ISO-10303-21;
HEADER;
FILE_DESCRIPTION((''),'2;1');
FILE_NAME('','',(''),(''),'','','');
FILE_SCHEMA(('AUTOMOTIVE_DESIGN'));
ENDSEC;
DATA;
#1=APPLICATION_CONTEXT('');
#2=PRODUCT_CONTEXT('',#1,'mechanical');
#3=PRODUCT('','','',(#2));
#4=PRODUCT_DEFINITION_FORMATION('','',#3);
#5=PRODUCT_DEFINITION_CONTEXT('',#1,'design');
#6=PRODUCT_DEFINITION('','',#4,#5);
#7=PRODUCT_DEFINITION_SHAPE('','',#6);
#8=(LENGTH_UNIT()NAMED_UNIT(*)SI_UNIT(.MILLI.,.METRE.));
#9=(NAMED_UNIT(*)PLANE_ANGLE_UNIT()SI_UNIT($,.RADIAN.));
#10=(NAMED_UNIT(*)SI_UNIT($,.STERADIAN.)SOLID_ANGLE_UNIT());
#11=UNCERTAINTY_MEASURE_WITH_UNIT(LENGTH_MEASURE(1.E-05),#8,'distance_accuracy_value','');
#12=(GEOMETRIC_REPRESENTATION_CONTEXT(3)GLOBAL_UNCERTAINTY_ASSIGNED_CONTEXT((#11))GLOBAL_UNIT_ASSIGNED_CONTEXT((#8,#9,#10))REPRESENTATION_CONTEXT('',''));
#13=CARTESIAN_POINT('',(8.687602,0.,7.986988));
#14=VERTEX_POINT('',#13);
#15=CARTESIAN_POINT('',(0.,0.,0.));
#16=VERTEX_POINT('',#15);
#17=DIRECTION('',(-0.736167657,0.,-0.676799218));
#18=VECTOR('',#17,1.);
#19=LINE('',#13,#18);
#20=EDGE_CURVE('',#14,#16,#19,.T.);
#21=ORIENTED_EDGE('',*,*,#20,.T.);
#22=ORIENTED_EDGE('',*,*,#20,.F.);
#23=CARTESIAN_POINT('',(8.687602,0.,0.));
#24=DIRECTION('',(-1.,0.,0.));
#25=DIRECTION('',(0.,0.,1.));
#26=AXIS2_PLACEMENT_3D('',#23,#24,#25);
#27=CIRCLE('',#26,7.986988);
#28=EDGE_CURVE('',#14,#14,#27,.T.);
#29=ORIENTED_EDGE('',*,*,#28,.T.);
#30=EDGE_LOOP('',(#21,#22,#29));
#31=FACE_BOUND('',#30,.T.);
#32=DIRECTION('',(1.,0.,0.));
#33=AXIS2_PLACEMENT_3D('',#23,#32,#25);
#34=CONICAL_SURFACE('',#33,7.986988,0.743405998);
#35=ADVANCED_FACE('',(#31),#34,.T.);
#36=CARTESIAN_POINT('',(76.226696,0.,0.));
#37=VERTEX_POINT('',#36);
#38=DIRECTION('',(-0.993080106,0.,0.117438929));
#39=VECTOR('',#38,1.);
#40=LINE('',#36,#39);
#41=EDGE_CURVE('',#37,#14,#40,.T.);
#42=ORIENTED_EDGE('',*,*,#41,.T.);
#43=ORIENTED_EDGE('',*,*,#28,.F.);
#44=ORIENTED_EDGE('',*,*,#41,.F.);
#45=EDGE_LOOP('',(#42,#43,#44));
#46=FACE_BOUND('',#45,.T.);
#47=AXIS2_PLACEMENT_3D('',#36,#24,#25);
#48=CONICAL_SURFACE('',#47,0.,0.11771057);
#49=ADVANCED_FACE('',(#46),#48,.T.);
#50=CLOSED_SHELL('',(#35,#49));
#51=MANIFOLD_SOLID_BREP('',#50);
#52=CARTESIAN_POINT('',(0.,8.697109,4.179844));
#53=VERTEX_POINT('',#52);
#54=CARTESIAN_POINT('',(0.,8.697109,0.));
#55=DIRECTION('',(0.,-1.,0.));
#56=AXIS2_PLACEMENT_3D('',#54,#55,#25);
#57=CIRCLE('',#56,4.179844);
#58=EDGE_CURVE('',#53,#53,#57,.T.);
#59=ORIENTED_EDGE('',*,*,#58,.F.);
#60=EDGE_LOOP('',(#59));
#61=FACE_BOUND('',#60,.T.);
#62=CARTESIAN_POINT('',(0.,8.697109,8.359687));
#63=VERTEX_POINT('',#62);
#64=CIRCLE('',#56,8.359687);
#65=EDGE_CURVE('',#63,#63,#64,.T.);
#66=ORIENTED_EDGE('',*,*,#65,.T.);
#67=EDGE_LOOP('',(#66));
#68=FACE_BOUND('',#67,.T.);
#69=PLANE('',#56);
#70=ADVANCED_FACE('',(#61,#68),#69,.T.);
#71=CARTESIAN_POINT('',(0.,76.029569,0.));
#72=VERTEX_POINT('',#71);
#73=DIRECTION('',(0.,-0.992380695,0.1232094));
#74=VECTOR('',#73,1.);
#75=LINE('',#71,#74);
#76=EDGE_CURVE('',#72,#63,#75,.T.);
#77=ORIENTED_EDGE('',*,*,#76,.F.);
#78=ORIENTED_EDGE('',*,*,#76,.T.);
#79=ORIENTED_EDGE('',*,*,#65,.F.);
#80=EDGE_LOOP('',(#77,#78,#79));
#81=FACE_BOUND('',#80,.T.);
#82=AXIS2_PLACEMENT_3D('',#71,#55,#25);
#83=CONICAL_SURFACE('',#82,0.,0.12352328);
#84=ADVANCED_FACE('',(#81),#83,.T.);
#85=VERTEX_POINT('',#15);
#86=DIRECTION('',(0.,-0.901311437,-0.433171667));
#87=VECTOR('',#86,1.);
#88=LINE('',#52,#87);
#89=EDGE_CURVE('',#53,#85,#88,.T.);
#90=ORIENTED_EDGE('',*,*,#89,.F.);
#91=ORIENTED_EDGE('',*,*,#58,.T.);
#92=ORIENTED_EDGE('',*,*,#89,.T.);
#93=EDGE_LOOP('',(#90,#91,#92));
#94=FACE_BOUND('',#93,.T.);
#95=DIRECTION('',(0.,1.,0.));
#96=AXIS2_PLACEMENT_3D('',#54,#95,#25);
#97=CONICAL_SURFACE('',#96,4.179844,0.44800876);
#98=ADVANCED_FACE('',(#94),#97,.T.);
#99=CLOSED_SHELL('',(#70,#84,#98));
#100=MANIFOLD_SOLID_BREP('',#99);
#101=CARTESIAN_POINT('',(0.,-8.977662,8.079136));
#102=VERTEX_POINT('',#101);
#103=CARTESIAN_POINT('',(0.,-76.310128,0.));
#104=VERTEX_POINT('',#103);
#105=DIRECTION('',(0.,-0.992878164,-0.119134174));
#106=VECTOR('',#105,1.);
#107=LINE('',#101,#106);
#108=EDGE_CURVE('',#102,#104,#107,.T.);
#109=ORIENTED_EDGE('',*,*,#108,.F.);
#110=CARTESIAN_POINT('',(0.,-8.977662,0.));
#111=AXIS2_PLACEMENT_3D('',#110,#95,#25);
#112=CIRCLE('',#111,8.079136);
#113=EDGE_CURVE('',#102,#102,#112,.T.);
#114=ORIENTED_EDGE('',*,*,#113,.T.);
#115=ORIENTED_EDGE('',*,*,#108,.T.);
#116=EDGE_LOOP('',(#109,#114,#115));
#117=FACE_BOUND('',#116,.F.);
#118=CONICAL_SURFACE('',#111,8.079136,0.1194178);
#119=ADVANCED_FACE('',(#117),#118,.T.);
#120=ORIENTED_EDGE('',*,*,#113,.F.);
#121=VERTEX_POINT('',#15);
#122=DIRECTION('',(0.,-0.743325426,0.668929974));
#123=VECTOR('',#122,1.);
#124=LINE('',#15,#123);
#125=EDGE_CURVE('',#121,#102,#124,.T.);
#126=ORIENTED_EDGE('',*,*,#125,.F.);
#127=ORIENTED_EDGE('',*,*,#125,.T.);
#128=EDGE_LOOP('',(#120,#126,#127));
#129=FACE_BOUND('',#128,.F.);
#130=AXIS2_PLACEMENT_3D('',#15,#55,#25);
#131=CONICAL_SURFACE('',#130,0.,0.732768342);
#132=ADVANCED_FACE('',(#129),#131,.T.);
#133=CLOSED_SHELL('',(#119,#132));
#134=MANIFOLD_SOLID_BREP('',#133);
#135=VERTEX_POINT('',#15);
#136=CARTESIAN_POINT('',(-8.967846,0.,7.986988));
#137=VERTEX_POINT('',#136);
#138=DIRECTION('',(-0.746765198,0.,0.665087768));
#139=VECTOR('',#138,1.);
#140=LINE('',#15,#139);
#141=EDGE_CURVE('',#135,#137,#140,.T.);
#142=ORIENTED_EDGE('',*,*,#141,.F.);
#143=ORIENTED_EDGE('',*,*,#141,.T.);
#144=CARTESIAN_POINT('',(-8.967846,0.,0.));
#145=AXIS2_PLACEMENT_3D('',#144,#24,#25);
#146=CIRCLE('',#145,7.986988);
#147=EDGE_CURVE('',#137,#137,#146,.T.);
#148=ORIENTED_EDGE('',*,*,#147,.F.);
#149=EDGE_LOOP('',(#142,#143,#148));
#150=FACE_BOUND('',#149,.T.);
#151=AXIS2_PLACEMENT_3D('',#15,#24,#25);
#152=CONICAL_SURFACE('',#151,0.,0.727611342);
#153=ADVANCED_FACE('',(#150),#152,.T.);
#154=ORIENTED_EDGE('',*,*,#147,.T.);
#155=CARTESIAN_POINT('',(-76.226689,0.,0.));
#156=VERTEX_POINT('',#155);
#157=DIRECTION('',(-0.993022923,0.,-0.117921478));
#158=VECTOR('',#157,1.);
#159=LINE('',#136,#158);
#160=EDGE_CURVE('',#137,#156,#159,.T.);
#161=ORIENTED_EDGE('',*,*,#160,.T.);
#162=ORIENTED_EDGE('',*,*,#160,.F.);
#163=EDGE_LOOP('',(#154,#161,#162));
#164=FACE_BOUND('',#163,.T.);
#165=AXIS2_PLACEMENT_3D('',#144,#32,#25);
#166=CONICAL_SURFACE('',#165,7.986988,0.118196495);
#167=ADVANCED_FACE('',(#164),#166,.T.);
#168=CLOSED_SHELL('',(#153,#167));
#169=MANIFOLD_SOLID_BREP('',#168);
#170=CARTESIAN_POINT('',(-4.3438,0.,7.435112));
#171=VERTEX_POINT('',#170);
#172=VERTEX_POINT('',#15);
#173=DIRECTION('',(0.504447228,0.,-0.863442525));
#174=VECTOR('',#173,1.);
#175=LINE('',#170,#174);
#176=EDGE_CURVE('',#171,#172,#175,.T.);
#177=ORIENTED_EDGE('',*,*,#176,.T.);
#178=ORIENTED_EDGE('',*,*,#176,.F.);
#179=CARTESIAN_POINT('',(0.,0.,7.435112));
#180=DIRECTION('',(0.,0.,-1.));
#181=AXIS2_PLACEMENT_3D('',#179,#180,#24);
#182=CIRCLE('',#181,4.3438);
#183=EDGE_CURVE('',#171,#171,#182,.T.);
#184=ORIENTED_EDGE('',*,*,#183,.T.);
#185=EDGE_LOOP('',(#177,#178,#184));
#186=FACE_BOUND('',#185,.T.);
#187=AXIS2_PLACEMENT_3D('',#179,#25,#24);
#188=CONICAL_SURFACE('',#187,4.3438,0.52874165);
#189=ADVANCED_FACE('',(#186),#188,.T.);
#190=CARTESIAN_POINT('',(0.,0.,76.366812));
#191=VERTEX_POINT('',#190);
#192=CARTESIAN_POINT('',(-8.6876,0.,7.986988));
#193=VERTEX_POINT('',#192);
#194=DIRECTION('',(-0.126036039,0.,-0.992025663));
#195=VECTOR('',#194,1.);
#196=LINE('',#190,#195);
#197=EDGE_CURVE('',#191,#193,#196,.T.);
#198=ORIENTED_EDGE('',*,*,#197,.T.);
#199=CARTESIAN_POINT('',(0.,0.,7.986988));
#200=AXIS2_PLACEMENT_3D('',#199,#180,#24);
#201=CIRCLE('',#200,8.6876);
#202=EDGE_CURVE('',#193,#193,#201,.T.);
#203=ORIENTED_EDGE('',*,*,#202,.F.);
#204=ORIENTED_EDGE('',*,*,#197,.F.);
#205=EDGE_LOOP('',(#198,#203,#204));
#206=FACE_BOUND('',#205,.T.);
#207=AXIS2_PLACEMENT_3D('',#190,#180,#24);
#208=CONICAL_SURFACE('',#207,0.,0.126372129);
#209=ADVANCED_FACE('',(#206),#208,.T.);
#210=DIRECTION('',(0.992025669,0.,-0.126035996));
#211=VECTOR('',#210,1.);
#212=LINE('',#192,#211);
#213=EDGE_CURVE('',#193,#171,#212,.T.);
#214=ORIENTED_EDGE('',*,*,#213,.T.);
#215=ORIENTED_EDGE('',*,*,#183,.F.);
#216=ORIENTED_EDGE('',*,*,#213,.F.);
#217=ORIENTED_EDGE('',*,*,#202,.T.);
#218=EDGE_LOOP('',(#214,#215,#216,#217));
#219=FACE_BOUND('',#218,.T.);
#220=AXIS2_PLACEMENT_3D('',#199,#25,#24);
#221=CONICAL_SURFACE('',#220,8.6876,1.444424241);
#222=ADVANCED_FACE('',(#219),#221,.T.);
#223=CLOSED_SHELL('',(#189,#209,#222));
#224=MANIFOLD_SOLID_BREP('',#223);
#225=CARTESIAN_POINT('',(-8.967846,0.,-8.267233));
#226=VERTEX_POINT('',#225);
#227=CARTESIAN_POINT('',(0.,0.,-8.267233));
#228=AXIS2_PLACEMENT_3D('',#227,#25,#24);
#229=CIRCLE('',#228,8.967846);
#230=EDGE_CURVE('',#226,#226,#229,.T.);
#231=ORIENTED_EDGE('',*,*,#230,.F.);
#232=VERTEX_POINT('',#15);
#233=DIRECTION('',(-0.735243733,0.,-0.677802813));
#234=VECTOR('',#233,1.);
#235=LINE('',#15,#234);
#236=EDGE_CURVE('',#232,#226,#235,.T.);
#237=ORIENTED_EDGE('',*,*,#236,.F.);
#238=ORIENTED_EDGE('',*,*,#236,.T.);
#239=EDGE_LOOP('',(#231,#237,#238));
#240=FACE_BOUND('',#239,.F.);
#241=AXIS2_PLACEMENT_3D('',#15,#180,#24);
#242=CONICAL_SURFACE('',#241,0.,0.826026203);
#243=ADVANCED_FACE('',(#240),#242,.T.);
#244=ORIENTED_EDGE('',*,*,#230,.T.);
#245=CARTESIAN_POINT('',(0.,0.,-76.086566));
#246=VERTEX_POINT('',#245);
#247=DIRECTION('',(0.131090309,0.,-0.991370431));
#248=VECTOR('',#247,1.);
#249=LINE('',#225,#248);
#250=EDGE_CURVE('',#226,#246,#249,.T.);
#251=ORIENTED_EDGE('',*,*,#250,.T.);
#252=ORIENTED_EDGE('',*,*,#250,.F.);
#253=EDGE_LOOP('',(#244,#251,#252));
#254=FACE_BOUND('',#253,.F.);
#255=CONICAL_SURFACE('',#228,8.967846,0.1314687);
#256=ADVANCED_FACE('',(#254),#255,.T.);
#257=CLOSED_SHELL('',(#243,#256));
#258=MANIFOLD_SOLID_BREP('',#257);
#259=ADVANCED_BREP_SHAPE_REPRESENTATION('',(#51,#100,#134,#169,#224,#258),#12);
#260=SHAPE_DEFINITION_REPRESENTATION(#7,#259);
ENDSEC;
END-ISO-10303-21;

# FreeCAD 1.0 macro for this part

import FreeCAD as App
import Part
import Sketcher

V = App.Vector
Q = App.Units.Quantity

doc = App.newDocument("Part")
body = doc.addObject("PartDesign::Body", "Body")

sketch1 = doc.addObject("Sketcher::SketchObject", "Sketch")
body.addObject(sketch1)
sketch1.AttachmentSupport = (doc.XZ_Plane, [""])
sketch1.MapMode = "FlatFace"
sketch1.addGeometry(Part.LineSegment(V(0, 76.4, 0), V(-8.7, 8, 0)), False)
sketch1.addGeometry(Part.LineSegment(V(-8.7, 8, 0), V(-4.3, 7.4, 0)), False)
sketch1.addGeometry(Part.LineSegment(V(-4.3, 7.4, 0), V(0, 0, 0)), False)
sketch1.addGeometry(Part.LineSegment(V(0, 0, 0), V(0, 76.4, 0)), False)
sketch1.addConstraint(Sketcher.Constraint("Coincident", 0, 2, 1, 1))
sketch1.addConstraint(Sketcher.Constraint("Coincident", 1, 2, 2, 1))
sketch1.addConstraint(Sketcher.Constraint("Coincident", 2, 2, 3, 1))
sketch1.addConstraint(Sketcher.Constraint("Coincident", 3, 2, 0, 1))
sketch1.addConstraint(Sketcher.Constraint("Vertical", 3))
sketch1.addConstraint(Sketcher.Constraint("Coincident", 2, 2, -1, 1))
sketch1.addConstraint(Sketcher.Constraint("Perpendicular", 0, 1))
sketch1.addConstraint(Sketcher.Constraint("DistanceY", 3, 1, 3, 2, Q("76.366812 mm")))
sketch1.addConstraint(Sketcher.Constraint("DistanceX", 0, 2, -1, 1, Q("8.6876 mm")))
sketch1.addConstraint(Sketcher.Constraint("DistanceX", 1, 2, -1, 1, Q("4.3438 mm")))
sketch1.addConstraint(Sketcher.Constraint("DistanceY", 1, 2, 3, 2, Q("68.9317 mm")))
revolution = doc.addObject("PartDesign::Revolution", "Revolution")
body.addObject(revolution)
revolution.Profile = sketch1
revolution.ReferenceAxis = (sketch1, ["V_Axis"])
revolution.Angle = 360
body2 = doc.addObject("PartDesign::Body", "Body001")

sketch2 = doc.addObject("Sketcher::SketchObject", "Sketch001")
body2.addObject(sketch2)
sketch2.AttachmentSupport = (doc.getObject("XZ_Plane001"), [""])
sketch2.MapMode = "FlatFace"
sketch2.addGeometry(Part.LineSegment(V(-76, 0, 0), V(0, 0, 0)), False)
sketch2.addGeometry(Part.LineSegment(V(0, 0, 0), V(-9, 8, 0)), False)
sketch2.addGeometry(Part.LineSegment(V(-9, 8, 0), V(-76, 0, 0)), False)
sketch2.addConstraint(Sketcher.Constraint("Coincident", 0, 2, 1, 1))
sketch2.addConstraint(Sketcher.Constraint("Coincident", 1, 2, 2, 1))
sketch2.addConstraint(Sketcher.Constraint("Coincident", 2, 2, 0, 1))
sketch2.addConstraint(Sketcher.Constraint("Horizontal", 0))
sketch2.addConstraint(Sketcher.Constraint("Coincident", 0, 2, -1, 1))
sketch2.addConstraint(Sketcher.Constraint("DistanceX", 0, 1, 0, 2, Q("76.226689 mm")))
sketch2.addConstraint(Sketcher.Constraint("Distance", 2, Q("67.73141 mm")))
sketch2.addConstraint(Sketcher.Constraint("DistanceY", -1, 1, 1, 2, Q("7.986988 mm")))
revolution2 = doc.addObject("PartDesign::Revolution", "Revolution001")
body2.addObject(revolution2)
revolution2.Profile = sketch2
revolution2.ReferenceAxis = (sketch2, ["H_Axis"])
revolution2.Angle = 360
body3 = doc.addObject("PartDesign::Body", "Body002")

sketch3 = doc.addObject("Sketcher::SketchObject", "Sketch002")
body3.addObject(sketch3)
sketch3.AttachmentSupport = (doc.getObject("XZ_Plane002"), [""])
sketch3.MapMode = "FlatFace"
sketch3.addGeometry(Part.LineSegment(V(0, -76, 0), V(0, 0, 0)), False)
sketch3.addGeometry(Part.LineSegment(V(0, 0, 0), V(-9, -8, 0)), False)
sketch3.addGeometry(Part.LineSegment(V(-9, -8, 0), V(0, -76, 0)), False)
sketch3.addConstraint(Sketcher.Constraint("Coincident", 0, 2, 1, 1))
sketch3.addConstraint(Sketcher.Constraint("Coincident", 1, 2, 2, 1))
sketch3.addConstraint(Sketcher.Constraint("Coincident", 2, 2, 0, 1))
sketch3.addConstraint(Sketcher.Constraint("Vertical", 0))
sketch3.addConstraint(Sketcher.Constraint("Coincident", 0, 2, -1, 1))
sketch3.addConstraint(Sketcher.Constraint("Distance", 2, Q("68.409679 mm")))
sketch3.addConstraint(Sketcher.Constraint("DistanceY", 0, 1, 0, 2, Q("76.086566 mm")))
sketch3.addConstraint(Sketcher.Constraint("Distance", 1, Q("12.197106 mm")))
revolution3 = doc.addObject("PartDesign::Revolution", "Revolution002")
body3.addObject(revolution3)
revolution3.Profile = sketch3
revolution3.ReferenceAxis = (sketch3, ["V_Axis"])
revolution3.Angle = 360
body4 = doc.addObject("PartDesign::Body", "Body003")

sketch4 = doc.addObject("Sketcher::SketchObject", "Sketch003")
body4.addObject(sketch4)
sketch4.AttachmentSupport = (doc.getObject("XZ_Plane003"), [""])
sketch4.MapMode = "FlatFace"
sketch4.addGeometry(Part.LineSegment(V(76, 0, 0), V(9, 8, 0)), False)
sketch4.addGeometry(Part.LineSegment(V(9, 8, 0), V(0, 0, 0)), False)
sketch4.addGeometry(Part.LineSegment(V(0, 0, 0), V(76, 0, 0)), False)
sketch4.addConstraint(Sketcher.Constraint("Coincident", 0, 2, 1, 1))
sketch4.addConstraint(Sketcher.Constraint("Coincident", 1, 2, 2, 1))
sketch4.addConstraint(Sketcher.Constraint("Coincident", 2, 2, 0, 1))
sketch4.addConstraint(Sketcher.Constraint("Horizontal", 2))
sketch4.addConstraint(Sketcher.Constraint("Coincident", 1, 2, -1, 1))
sketch4.addConstraint(Sketcher.Constraint("Distance", 1, Q("11.801119 mm")))
sketch4.addConstraint(Sketcher.Constraint("DistanceX", 2, 1, 2, 2, Q("76.226696 mm")))
sketch4.addConstraint(Sketcher.Constraint("DistanceY", -1, 1, 0, 2, Q("7.986988 mm")))
revolution4 = doc.addObject("PartDesign::Revolution", "Revolution003")
body4.addObject(revolution4)
revolution4.Profile = sketch4
revolution4.ReferenceAxis = (sketch4, ["H_Axis"])
revolution4.Angle = 360
body5 = doc.addObject("PartDesign::Body", "Body004")

sketch5 = doc.addObject("Sketcher::SketchObject", "Sketch004")
body5.addObject(sketch5)
sketch5.AttachmentSupport = (doc.getObject("YZ_Plane004"), [""])
sketch5.MapMode = "FlatFace"
sketch5.addGeometry(Part.LineSegment(V(-76, 0, 0), V(0, 0, 0)), False)
sketch5.addGeometry(Part.LineSegment(V(0, 0, 0), V(-9, 8, 0)), False)
sketch5.addGeometry(Part.LineSegment(V(-9, 8, 0), V(-76, 0, 0)), False)
sketch5.addConstraint(Sketcher.Constraint("Coincident", 0, 2, 1, 1))
sketch5.addConstraint(Sketcher.Constraint("Coincident", 1, 2, 2, 1))
sketch5.addConstraint(Sketcher.Constraint("Coincident", 2, 2, 0, 1))
sketch5.addConstraint(Sketcher.Constraint("Horizontal", 0))
sketch5.addConstraint(Sketcher.Constraint("Coincident", 0, 2, -1, 1))
sketch5.addConstraint(Sketcher.Constraint("Distance", 1, Q("12.077701 mm")))
sketch5.addConstraint(Sketcher.Constraint("DistanceX", 0, 1, 0, 2, Q("76.310128 mm")))
sketch5.addConstraint(Sketcher.Constraint("Distance", 2, Q("67.815436 mm")))
revolution5 = doc.addObject("PartDesign::Revolution", "Revolution004")
body5.addObject(revolution5)
revolution5.Profile = sketch5
revolution5.ReferenceAxis = (sketch5, ["H_Axis"])
revolution5.Angle = 360
body6 = doc.addObject("PartDesign::Body", "Body005")

sketch6 = doc.addObject("Sketcher::SketchObject", "Sketch005")
body6.addObject(sketch6)
sketch6.AttachmentSupport = (doc.getObject("YZ_Plane005"), [""])
sketch6.MapMode = "FlatFace"
sketch6.addGeometry(Part.LineSegment(V(76, 0, 0), V(8.7, 8.4, 0)), False)
sketch6.addGeometry(Part.LineSegment(V(8.7, 8.4, 0), V(8.7, 4.2, 0)), False)
sketch6.addGeometry(Part.LineSegment(V(8.7, 4.2, 0), V(0, 0, 0)), False)
sketch6.addGeometry(Part.LineSegment(V(0, 0, 0), V(76, 0, 0)), False)
sketch6.addConstraint(Sketcher.Constraint("Coincident", 0, 2, 1, 1))
sketch6.addConstraint(Sketcher.Constraint("Coincident", 1, 2, 2, 1))
sketch6.addConstraint(Sketcher.Constraint("Coincident", 2, 2, 3, 1))
sketch6.addConstraint(Sketcher.Constraint("Coincident", 3, 2, 0, 1))
sketch6.addConstraint(Sketcher.Constraint("Vertical", 1))
sketch6.addConstraint(Sketcher.Constraint("Horizontal", 3))
sketch6.addConstraint(Sketcher.Constraint("Coincident", 2, 2, -1, 1))
sketch6.addConstraint(Sketcher.Constraint("DistanceX", 3, 1, 3, 2, Q("76.029569 mm")))
sketch6.addConstraint(Sketcher.Constraint("DistanceY", 1, 2, 1, 1, Q("4.179843 mm")))
sketch6.addConstraint(Sketcher.Constraint("DistanceX", -1, 1, 0, 2, Q("8.697109 mm")))
sketch6.addConstraint(Sketcher.Constraint("Distance", 0, Q("67.849425 mm")))
revolution6 = doc.addObject("PartDesign::Revolution", "Revolution005")
body6.addObject(revolution6)
revolution6.Profile = sketch6
revolution6.ReferenceAxis = (sketch6, ["H_Axis"])
revolution6.Angle = 360

doc.recompute()
